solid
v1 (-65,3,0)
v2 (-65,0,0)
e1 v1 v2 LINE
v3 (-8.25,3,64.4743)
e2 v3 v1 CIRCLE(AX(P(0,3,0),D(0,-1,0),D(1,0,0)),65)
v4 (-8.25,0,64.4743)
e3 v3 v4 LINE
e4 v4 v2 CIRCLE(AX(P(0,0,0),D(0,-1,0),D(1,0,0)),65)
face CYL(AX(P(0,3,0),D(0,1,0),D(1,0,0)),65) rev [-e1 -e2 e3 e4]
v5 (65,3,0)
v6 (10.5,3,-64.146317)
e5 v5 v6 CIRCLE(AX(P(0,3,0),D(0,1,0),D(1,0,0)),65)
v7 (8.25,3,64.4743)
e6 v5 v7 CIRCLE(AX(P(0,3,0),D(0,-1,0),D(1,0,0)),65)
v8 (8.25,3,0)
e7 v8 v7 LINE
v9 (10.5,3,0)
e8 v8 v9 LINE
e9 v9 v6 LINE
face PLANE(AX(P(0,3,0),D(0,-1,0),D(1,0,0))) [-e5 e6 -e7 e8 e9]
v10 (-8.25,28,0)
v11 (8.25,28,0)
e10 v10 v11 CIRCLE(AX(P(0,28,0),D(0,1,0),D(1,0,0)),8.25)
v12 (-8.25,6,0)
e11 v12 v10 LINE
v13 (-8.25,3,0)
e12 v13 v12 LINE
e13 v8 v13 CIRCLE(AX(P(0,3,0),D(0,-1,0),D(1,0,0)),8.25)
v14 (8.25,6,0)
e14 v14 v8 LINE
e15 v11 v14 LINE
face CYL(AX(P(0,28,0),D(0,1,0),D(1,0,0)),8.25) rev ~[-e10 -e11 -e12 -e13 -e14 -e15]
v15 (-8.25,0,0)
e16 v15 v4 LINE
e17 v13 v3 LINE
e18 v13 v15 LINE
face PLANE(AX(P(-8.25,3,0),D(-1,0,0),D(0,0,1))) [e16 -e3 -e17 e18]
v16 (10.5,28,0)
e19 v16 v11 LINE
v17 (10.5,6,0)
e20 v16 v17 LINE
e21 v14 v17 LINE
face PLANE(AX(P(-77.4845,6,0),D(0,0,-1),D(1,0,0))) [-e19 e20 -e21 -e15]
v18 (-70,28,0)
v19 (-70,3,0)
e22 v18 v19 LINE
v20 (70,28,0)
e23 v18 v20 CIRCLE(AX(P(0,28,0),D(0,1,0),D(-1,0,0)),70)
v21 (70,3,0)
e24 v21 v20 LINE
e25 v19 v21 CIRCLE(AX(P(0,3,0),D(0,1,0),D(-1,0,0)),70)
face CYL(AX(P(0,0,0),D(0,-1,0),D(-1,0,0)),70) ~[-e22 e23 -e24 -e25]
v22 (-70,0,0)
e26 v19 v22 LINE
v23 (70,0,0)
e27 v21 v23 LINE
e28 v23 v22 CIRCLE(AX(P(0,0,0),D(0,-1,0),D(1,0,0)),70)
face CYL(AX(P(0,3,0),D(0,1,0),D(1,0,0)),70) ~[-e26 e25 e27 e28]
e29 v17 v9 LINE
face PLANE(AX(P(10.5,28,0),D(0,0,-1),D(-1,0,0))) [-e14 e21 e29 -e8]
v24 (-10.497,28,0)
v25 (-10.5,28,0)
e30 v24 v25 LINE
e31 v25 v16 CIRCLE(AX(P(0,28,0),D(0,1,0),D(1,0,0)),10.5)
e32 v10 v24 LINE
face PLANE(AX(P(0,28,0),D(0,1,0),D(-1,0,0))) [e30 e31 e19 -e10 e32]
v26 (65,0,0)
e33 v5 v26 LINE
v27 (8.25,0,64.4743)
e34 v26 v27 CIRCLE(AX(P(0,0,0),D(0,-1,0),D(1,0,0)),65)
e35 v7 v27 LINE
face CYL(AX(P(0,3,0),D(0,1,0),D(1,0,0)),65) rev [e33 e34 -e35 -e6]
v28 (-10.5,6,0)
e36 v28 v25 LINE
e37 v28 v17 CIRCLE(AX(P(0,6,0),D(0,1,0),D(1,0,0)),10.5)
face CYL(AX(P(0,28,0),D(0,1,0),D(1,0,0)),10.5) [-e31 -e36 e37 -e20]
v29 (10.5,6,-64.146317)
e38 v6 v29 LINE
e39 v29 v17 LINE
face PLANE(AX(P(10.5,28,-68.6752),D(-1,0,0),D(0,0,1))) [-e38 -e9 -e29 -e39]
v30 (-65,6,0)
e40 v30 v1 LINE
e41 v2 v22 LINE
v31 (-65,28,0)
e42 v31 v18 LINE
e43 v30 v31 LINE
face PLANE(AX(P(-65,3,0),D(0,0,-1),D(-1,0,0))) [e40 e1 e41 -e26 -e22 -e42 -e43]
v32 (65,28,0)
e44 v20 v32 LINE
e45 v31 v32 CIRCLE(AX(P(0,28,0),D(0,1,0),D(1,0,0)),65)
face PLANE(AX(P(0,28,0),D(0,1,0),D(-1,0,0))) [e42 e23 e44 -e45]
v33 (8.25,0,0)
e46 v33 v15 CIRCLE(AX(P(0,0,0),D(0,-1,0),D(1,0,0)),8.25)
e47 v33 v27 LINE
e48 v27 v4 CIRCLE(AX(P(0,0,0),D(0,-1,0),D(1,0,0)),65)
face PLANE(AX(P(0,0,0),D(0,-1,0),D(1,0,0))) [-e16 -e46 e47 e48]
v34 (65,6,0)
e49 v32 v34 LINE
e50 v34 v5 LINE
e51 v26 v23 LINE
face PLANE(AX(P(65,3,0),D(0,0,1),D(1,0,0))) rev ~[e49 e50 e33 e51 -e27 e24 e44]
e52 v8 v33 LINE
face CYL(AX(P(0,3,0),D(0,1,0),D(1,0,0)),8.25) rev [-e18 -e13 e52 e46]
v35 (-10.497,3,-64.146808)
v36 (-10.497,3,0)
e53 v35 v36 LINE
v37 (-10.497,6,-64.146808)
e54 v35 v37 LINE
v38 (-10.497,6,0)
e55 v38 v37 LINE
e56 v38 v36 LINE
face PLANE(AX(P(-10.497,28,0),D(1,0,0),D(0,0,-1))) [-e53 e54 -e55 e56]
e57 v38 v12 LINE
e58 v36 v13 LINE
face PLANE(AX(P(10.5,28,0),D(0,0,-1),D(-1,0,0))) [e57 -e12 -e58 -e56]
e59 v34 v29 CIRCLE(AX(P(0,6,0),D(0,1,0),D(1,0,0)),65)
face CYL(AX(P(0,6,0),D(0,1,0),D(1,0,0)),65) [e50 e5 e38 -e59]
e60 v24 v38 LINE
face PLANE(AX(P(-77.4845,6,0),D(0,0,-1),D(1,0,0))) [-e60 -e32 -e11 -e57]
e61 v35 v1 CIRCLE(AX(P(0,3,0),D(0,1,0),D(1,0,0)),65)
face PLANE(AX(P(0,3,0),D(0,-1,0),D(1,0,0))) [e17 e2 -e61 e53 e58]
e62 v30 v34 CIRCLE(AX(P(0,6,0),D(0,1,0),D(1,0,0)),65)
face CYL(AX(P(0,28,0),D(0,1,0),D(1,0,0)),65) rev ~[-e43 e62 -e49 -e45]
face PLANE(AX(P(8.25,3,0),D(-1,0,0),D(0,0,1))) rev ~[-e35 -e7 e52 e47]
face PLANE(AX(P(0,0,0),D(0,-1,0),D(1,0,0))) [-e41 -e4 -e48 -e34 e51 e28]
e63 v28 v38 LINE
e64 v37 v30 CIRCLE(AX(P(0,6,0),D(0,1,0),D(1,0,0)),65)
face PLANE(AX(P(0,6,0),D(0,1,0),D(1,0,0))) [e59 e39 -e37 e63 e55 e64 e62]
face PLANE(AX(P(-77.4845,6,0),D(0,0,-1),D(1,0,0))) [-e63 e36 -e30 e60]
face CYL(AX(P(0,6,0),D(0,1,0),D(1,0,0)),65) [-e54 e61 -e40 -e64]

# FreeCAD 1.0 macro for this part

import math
import FreeCAD as App
import Part
import Sketcher

V = App.Vector

doc = App.newDocument("Part")
body = doc.addObject("PartDesign::Body", "Body")

# Sketch on XZ plane
sketch1 = body.newObject("Sketcher::SketchObject", "Sketch")
sketch1.AttachmentSupport = (doc.getObject("XZ_Plane"), [""])
sketch1.MapMode = "FlatFace"
sketch1.addGeometry(Part.Circle(V(0, 0, 0), V(0, 0, 1), 70), False)
sketch1.addConstraint([
    Sketcher.Constraint("Coincident", 0, 3, -1, 1),
    Sketcher.Constraint("Diameter", 0, 140.0),
])
pad1 = body.newObject("PartDesign::Pad", "Pad")
pad1.Profile = sketch1
pad1.Length = 28
pad1.Reversed = True

# Sketch on XZ plane
sketch2 = body.newObject("Sketcher::SketchObject", "Sketch001")
sketch2.AttachmentSupport = (doc.getObject("XZ_Plane"), [""])
sketch2.MapMode = "FlatFace"
sketch2.AttachmentOffset = App.Placement(V(0, 0, -28), App.Rotation())
sketch2.addGeometry(Part.Circle(V(0, 0, 0), V(0, 0, 1), 8.25), False)
sketch2.addConstraint([
    Sketcher.Constraint("Coincident", 0, 3, -1, 1),
    Sketcher.Constraint("Diameter", 0, 16.5),
])
pocket1 = body.newObject("PartDesign::Pocket", "Pocket")
pocket1.Profile = sketch2
pocket1.Length = 280
pocket1.Reversed = True

# Sketch on XZ plane
sketch3 = body.newObject("Sketcher::SketchObject", "Sketch002")
sketch3.AttachmentSupport = (doc.getObject("XZ_Plane"), [""])
sketch3.MapMode = "FlatFace"
sketch3.AttachmentOffset = App.Placement(V(0, 0, -28), App.Rotation())
sketch3.addGeometry([
    Part.Circle(V(0, 0, 0), V(0, 0, 1), 65),
    Part.Circle(V(0, 0, 0), V(0, 0, 1), 10.5),
], False)
sketch3.addConstraint([
    Sketcher.Constraint("Coincident", 0, 3, -1, 1),
    Sketcher.Constraint("Coincident", 1, 3, -1, 1),
    Sketcher.Constraint("Diameter", 0, 130.0),
    Sketcher.Constraint("Diameter", 1, 21.0),
])
pocket2 = body.newObject("PartDesign::Pocket", "Pocket001")
pocket2.Profile = sketch3
pocket2.Length = 22
pocket2.Reversed = True

# Sketch on XZ plane
sketch4 = body.newObject("Sketcher::SketchObject", "Sketch003")
sketch4.AttachmentSupport = (doc.getObject("XZ_Plane"), [""])
sketch4.MapMode = "FlatFace"
sketch4.AttachmentOffset = App.Placement(V(0, 0, -6), App.Rotation())
sketch4.addGeometry([
    Part.LineSegment(V(-77.4845, -100.8261, 0), V(-77.4845, 0, 0)),
    Part.LineSegment(V(-77.4845, 0, 0), V(88.5537, 0, 0)),
    Part.LineSegment(V(88.5537, 0, 0), V(88.5537, -100.8261, 0)),
    Part.LineSegment(V(88.5537, -100.8261, 0), V(-77.4845, -100.8261, 0)),
], False)
sketch4.addConstraint([
    Sketcher.Constraint("Coincident", 0, 2, 1, 1),
    Sketcher.Constraint("Coincident", 1, 2, 2, 1),
    Sketcher.Constraint("Coincident", 2, 2, 3, 1),
    Sketcher.Constraint("Coincident", 3, 2, 0, 1),
    Sketcher.Constraint("Vertical", 0),
    Sketcher.Constraint("Horizontal", 1),
    Sketcher.Constraint("Vertical", 2),
    Sketcher.Constraint("Horizontal", 3),
    Sketcher.Constraint("PointOnObject", 0, 2, -1),
    Sketcher.Constraint("DistanceY", 0, 1, 0, 2, 100.826),
    Sketcher.Constraint("DistanceX", 1, 1, 1, 2, 166.0382),
    Sketcher.Constraint("DistanceX", 0, 2, -1, 1, 77.4845),
])
pocket3 = body.newObject("PartDesign::Pocket", "Pocket002")
pocket3.Profile = sketch4
pocket3.Length = 220

# Sketch on XZ plane
sketch5 = body.newObject("Sketcher::SketchObject", "Sketch004")
sketch5.AttachmentSupport = (doc.getObject("XZ_Plane"), [""])
sketch5.MapMode = "FlatFace"
sketch5.addGeometry([
    Part.Circle(V(0, 0, 0), V(0, 0, 1), 70),
    Part.Circle(V(0, 0, 0), V(0, 0, 1), 8.25),
], False)
sketch5.addConstraint([
    Sketcher.Constraint("Coincident", 0, 3, -1, 1),
    Sketcher.Constraint("Coincident", 1, 3, -1, 1),
    Sketcher.Constraint("Diameter", 0, 140.0),
    Sketcher.Constraint("Diameter", 1, 16.5),
])
pocket4 = body.newObject("PartDesign::Pocket", "Pocket003")
pocket4.Profile = sketch5
pocket4.Length = 3

# Sketch on XZ plane
sketch6 = body.newObject("Sketcher::SketchObject", "Sketch005")
sketch6.AttachmentSupport = (doc.getObject("XZ_Plane"), [""])
sketch6.MapMode = "FlatFace"
sketch6.AttachmentOffset = App.Placement(V(0, 0, -6), App.Rotation())
sketch6.addGeometry([
    Part.LineSegment(V(-70, 0, 0), V(-65, 0, 0)),
    Part.ArcOfCircle(Part.Circle(V(0, 0, 0), V(0, 0, 1), 65), math.radians(180), math.radians(360)),
    Part.LineSegment(V(65, 0, 0), V(70, 0, 0)),
    Part.ArcOfCircle(Part.Circle(V(0, 0, 0), V(0, 0, 1), 70), math.radians(180), math.radians(360)),
], False)
sketch6.addConstraint([
    Sketcher.Constraint("Coincident", 0, 2, 1, 1),
    Sketcher.Constraint("Coincident", 1, 2, 2, 1),
    Sketcher.Constraint("Coincident", 2, 2, 3, 2),
    Sketcher.Constraint("Coincident", 3, 1, 0, 1),
    Sketcher.Constraint("Horizontal", 0),
    Sketcher.Constraint("Horizontal", 2),
    Sketcher.Constraint("Coincident", 1, 3, -1, 1),
    Sketcher.Constraint("Coincident", 3, 3, -1, 1),
    Sketcher.Constraint("PointOnObject", 0, 2, -1),
    Sketcher.Constraint("PointOnObject", 1, 2, -1),
    Sketcher.Constraint("Radius", 1, 65.0),
    Sketcher.Constraint("Radius", 3, 70.0),
])
pocket5 = body.newObject("PartDesign::Pocket", "Pocket004")
pocket5.Profile = sketch6
pocket5.Length = 3
pocket5.Reversed = True

# Sketch on XZ plane
sketch7 = body.newObject("Sketcher::SketchObject", "Sketch006")
sketch7.AttachmentSupport = (doc.getObject("XZ_Plane"), [""])
sketch7.MapMode = "FlatFace"
sketch7.AttachmentOffset = App.Placement(V(0, 0, -3), App.Rotation())
sketch7.addGeometry([
    Part.ArcOfCircle(Part.Circle(V(0, 0, 0), V(0, 0, 1), 65), math.radians(0), math.radians(180)),
    Part.LineSegment(V(65, 0, 0), V(70, 0, 0)),
    Part.ArcOfCircle(Part.Circle(V(0, 0, 0), V(0, 0, 1), 70), math.radians(0), math.radians(180)),
    Part.LineSegment(V(-70, 0, 0), V(-65, 0, 0)),
], False)
sketch7.addConstraint([
    Sketcher.Constraint("Coincident", 0, 1, 1, 1),
    Sketcher.Constraint("Coincident", 1, 2, 2, 1),
    Sketcher.Constraint("Coincident", 2, 2, 3, 1),
    Sketcher.Constraint("Coincident", 3, 2, 0, 2),
    Sketcher.Constraint("Horizontal", 1),
    Sketcher.Constraint("Horizontal", 3),
    Sketcher.Constraint("Coincident", 0, 3, -1, 1),
    Sketcher.Constraint("Coincident", 2, 3, -1, 1),
    Sketcher.Constraint("PointOnObject", 0, 1, -1),
    Sketcher.Constraint("PointOnObject", 2, 2, -1),
    Sketcher.Constraint("Radius", 0, 65.0),
    Sketcher.Constraint("Radius", 2, 70.0),
])
pad2 = body.newObject("PartDesign::Pad", "Pad001")
pad2.Profile = sketch7
pad2.Length = 3

# Sketch on XZ plane
sketch8 = body.newObject("Sketcher::SketchObject", "Sketch007")
sketch8.AttachmentSupport = (doc.getObject("XZ_Plane"), [""])
sketch8.MapMode = "FlatFace"
sketch8.AttachmentOffset = App.Placement(V(0, 0, -28), App.Rotation())
sketch8.addGeometry([
    Part.LineSegment(V(-10.497, 0, 0), V(10.5, 0, 0)),
    Part.LineSegment(V(10.5, 0, 0), V(10.5, -68.6752, 0)),
    Part.LineSegment(V(10.5, -68.6752, 0), V(-10.497, -68.6752, 0)),
    Part.LineSegment(V(-10.497, -68.6752, 0), V(-10.497, 0, 0)),
], False)
sketch8.addConstraint([
    Sketcher.Constraint("Coincident", 0, 2, 1, 1),
    Sketcher.Constraint("Coincident", 1, 2, 2, 1),
    Sketcher.Constraint("Coincident", 2, 2, 3, 1),
    Sketcher.Constraint("Coincident", 3, 2, 0, 1),
    Sketcher.Constraint("Horizontal", 0),
    Sketcher.Constraint("Vertical", 1),
    Sketcher.Constraint("Horizontal", 2),
    Sketcher.Constraint("Vertical", 3),
    Sketcher.Constraint("PointOnObject", 0, 2, -1),
    Sketcher.Constraint("DistanceX", -1, 1, 0, 2, 10.5),
    Sketcher.Constraint("DistanceX", 0, 1, 0, 2, 20.997),
    Sketcher.Constraint("DistanceY", 1, 2, 1, 1, 68.6752),
])
pocket6 = body.newObject("PartDesign::Pocket", "Pocket005")
pocket6.Profile = sketch8
pocket6.Length = 30
pocket6.Reversed = True

# Sketch on XZ plane
sketch9 = body.newObject("Sketcher::SketchObject", "Sketch008")
sketch9.AttachmentSupport = (doc.getObject("XZ_Plane"), [""])
sketch9.MapMode = "FlatFace"
sketch9.AttachmentOffset = App.Placement(V(0, 0, -3), App.Rotation())
sketch9.addGeometry([
    Part.ArcOfCircle(Part.Circle(V(0, 0, 0), V(0, 0, 1), 8.25), math.radians(0), math.radians(180)),
    Part.LineSegment(V(8.25, 0, 0), V(8.25, 64.4743, 0)),
    Part.ArcOfCircle(Part.Circle(V(0, 0, 0), V(0, 0, 1), 65), math.radians(82.708174), math.radians(97.291826)),
    Part.LineSegment(V(-8.25, 64.4743, 0), V(-8.25, 0, 0)),
], False)
sketch9.addConstraint([
    Sketcher.Constraint("Tangent", 0, 1, 1, 1),
    Sketcher.Constraint("Coincident", 1, 2, 2, 1),
    Sketcher.Constraint("Coincident", 2, 2, 3, 1),
    Sketcher.Constraint("Tangent", 3, 2, 0, 2),
    Sketcher.Constraint("Vertical", 1),
    Sketcher.Constraint("Vertical", 3),
    Sketcher.Constraint("Coincident", 0, 3, -1, 1),
    Sketcher.Constraint("Coincident", 2, 3, -1, 1),
    Sketcher.Constraint("Radius", 2, 65.0),
    Sketcher.Constraint("Radius", 0, 8.25),
])
pad3 = body.newObject("PartDesign::Pad", "Pad002")
pad3.Profile = sketch9
pad3.Length = 3

doc.recompute()
